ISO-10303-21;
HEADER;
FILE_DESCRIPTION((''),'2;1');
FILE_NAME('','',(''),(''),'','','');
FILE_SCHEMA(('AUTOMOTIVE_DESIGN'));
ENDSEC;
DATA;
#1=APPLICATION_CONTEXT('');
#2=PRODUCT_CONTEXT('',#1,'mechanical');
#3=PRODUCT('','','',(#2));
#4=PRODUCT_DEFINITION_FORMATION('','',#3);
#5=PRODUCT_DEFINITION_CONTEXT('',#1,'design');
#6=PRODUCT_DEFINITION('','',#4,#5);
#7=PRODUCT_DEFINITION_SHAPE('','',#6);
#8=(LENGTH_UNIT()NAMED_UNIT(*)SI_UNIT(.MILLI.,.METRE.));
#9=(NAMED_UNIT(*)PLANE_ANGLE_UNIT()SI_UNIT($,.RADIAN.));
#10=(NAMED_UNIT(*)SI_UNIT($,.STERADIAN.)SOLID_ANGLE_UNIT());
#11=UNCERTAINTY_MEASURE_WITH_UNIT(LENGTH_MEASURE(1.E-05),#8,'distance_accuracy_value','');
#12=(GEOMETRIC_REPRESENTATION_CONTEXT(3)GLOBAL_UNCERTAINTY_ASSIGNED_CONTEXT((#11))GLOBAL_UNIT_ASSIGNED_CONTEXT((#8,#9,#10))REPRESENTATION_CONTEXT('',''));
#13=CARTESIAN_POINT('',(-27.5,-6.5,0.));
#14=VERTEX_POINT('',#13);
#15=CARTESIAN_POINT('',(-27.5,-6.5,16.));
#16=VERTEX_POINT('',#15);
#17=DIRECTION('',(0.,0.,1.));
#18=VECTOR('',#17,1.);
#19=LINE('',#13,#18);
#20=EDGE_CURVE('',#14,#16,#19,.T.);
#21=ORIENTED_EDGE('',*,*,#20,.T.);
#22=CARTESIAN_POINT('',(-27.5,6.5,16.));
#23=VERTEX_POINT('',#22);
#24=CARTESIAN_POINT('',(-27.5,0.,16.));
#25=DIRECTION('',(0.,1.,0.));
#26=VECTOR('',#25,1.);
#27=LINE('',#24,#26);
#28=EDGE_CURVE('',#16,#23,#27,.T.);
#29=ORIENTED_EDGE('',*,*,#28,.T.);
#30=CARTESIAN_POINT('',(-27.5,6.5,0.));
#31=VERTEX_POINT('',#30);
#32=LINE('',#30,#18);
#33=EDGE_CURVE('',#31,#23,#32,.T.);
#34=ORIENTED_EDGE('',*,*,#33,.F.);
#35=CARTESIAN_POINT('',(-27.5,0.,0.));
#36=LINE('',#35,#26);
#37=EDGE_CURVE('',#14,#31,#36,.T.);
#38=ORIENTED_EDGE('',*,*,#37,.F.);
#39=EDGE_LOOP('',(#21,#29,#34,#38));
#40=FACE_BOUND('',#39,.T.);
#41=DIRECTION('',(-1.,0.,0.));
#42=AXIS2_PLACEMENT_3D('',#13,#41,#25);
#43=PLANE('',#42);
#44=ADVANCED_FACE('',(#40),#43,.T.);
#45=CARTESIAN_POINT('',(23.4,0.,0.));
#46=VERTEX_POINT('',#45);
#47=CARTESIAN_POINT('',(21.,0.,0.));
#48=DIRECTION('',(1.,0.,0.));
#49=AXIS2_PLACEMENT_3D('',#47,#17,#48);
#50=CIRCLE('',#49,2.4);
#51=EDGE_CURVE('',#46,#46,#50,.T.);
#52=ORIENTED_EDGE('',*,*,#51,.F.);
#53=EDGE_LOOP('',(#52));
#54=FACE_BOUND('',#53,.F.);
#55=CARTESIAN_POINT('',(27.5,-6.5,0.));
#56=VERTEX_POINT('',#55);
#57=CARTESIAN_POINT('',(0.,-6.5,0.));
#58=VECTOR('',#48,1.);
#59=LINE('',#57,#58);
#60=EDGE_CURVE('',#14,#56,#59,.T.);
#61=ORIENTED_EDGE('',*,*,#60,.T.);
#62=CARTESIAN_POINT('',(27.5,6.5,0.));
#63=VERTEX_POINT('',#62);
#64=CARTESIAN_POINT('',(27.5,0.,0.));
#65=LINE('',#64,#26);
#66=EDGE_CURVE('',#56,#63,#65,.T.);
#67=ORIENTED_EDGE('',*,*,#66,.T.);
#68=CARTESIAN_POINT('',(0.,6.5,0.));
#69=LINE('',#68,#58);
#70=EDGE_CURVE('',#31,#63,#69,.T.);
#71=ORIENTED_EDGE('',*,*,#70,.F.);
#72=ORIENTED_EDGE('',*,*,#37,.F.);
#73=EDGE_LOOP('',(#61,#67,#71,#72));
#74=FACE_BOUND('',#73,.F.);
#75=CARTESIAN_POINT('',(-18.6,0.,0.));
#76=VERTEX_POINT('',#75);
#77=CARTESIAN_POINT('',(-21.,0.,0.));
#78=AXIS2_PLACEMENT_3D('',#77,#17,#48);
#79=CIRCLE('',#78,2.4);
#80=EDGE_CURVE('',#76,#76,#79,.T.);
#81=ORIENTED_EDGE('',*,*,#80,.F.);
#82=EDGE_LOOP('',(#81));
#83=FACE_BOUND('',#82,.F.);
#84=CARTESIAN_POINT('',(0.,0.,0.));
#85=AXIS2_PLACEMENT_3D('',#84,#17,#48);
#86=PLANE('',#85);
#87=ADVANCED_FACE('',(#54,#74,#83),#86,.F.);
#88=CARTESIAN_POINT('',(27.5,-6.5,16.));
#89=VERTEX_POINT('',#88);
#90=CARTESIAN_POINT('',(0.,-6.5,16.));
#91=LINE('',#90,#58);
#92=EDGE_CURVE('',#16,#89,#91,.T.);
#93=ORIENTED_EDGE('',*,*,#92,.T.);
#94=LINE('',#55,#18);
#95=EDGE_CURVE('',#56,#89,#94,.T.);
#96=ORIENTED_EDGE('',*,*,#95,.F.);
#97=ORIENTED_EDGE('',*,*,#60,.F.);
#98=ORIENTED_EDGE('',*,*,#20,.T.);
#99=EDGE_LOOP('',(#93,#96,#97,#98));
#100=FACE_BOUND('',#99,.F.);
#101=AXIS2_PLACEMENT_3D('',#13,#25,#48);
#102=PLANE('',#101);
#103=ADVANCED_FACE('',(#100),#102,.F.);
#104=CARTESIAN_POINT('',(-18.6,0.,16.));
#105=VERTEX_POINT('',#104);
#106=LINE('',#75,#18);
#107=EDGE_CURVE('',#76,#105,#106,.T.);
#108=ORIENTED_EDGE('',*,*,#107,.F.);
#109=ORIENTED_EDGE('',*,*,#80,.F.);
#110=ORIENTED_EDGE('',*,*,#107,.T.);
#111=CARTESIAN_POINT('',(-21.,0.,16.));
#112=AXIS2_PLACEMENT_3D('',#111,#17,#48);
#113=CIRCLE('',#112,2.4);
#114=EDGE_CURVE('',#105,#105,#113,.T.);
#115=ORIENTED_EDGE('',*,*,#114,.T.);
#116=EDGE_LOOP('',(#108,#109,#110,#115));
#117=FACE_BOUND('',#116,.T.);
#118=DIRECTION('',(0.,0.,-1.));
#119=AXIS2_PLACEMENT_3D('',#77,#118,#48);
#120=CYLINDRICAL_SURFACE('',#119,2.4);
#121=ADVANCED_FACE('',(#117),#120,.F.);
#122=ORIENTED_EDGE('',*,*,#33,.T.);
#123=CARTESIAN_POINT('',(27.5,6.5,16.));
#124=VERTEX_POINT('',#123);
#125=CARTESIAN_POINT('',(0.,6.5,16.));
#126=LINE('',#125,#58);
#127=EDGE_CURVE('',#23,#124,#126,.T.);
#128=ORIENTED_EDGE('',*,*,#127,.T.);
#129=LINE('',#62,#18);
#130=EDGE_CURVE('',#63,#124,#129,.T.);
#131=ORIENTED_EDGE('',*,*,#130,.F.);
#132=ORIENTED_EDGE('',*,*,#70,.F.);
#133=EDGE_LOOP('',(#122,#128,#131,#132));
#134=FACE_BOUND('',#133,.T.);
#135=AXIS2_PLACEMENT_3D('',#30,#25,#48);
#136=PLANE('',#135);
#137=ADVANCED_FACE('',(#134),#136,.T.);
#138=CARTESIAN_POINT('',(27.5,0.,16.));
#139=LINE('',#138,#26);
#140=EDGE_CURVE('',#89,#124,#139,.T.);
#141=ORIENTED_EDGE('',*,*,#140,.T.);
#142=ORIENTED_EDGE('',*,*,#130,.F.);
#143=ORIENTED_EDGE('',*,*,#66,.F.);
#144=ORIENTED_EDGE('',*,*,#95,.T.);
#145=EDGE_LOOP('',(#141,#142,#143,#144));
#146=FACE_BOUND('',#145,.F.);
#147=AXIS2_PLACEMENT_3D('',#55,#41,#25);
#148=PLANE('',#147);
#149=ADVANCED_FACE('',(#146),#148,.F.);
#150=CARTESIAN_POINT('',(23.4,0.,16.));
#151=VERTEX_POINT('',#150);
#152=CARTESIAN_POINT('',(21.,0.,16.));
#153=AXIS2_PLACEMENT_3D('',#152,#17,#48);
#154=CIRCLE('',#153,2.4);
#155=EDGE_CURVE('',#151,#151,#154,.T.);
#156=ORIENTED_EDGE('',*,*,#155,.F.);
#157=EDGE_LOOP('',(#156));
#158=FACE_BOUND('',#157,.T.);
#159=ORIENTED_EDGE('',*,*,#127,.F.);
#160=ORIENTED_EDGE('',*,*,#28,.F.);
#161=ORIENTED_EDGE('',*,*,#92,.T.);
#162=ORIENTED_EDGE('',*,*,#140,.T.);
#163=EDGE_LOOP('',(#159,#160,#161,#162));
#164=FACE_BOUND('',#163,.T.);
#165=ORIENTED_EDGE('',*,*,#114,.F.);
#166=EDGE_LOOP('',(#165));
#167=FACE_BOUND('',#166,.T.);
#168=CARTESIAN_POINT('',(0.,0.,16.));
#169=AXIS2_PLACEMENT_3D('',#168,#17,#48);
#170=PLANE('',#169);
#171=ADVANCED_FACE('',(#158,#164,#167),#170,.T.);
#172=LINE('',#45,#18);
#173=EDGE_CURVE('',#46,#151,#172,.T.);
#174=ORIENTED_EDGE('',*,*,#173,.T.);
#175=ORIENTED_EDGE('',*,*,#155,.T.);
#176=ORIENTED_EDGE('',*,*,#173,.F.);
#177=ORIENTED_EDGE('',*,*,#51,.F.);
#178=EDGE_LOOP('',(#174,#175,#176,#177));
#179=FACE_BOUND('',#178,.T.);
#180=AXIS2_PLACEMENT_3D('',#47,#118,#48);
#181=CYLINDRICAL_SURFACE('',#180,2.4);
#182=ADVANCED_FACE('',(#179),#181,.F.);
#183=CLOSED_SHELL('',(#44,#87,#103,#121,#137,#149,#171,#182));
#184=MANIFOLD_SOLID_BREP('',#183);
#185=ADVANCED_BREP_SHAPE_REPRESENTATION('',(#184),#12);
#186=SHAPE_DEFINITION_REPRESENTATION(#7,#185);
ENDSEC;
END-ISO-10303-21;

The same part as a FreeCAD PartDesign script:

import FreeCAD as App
import Part
import Sketcher

V = App.Vector


def add_polygon(sketch, points):
    """Adds a closed chain of lines whose ends are joined by coincident constraints."""
    first, n = sketch.GeometryCount, len(points)
    for a, b in zip(points, points[1:] + points[:1]):
        sketch.addGeometry(Part.LineSegment(App.Vector(*a, 0), App.Vector(*b, 0)), False)
    for i in range(n):
        sketch.addConstraint(Sketcher.Constraint("Coincident", first + i, 2, first + (i + 1) % n, 1))

doc = App.newDocument("Part")
params = doc.addObject("Spreadsheet::Sheet", "Params")
for row, (alias, value) in enumerate([
    ("sketch1_diameter", "4.8 mm"),
    ("sketch1_width", "55 mm"),
    ("sketch1_height", "13 mm"),
    ("pad1_length", "16 mm"),
], start=1):
    params.set(f"A{row}", alias)
    params.set(f"B{row}", "=" + value)
    params.setAlias(f"B{row}", alias)

body = doc.addObject("PartDesign::Body", "Body")

sketch1 = body.newObject("Sketcher::SketchObject", "Sketch")
sketch1.AttachmentSupport = (doc.getObject("XY_Plane"), [""])
sketch1.MapMode = "FlatFace"
add_polygon(sketch1, [(-27.5, 6.5), (-27.5, -6.5), (27.5, -6.5), (27.5, 6.5)])
sketch1.addGeometry(Part.Circle(V(-21, 0, 0), V(0, 0, 1), 2.4), False)
sketch1.addGeometry(Part.Circle(V(21, 0, 0), V(0, 0, 1), 2.4), False)
sketch1.addConstraint(Sketcher.Constraint("Vertical", 0))
sketch1.addConstraint(Sketcher.Constraint("Horizontal", 1))
sketch1.addConstraint(Sketcher.Constraint("Vertical", 2))
sketch1.addConstraint(Sketcher.Constraint("Horizontal", 3))
sketch1.addConstraint(Sketcher.Constraint("Equal", 4, 5))
sketch1.addConstraint(Sketcher.Constraint("Symmetric", 4, 3, 5, 3, -1, 1))
sketch1.addConstraint(Sketcher.Constraint("Symmetric", 0, 2, 2, 2, -1, 1))
sketch1.addConstraint(Sketcher.Constraint("PointOnObject", 4, 3, -1))
sketch1.addConstraint(Sketcher.Constraint("Diameter", 4, 4.8))
sketch1.addConstraint(Sketcher.Constraint("DistanceX", 1, 1, 1, 2, 55.0))
sketch1.addConstraint(Sketcher.Constraint("DistanceY", 0, 2, 0, 1, 13.0))
sketch1.addConstraint(Sketcher.Constraint("DistanceX", 4, 3, -1, 1, 21.0))
sketch1.setExpression("Constraints[12]", "Params.sketch1_diameter")
sketch1.setExpression("Constraints[13]", "Params.sketch1_width")
sketch1.setExpression("Constraints[14]", "Params.sketch1_height")
pad1 = body.newObject("PartDesign::Pad", "Pad")
pad1.Profile = sketch1
pad1.setExpression("Length", "Params.pad1_length")

doc.recompute()
